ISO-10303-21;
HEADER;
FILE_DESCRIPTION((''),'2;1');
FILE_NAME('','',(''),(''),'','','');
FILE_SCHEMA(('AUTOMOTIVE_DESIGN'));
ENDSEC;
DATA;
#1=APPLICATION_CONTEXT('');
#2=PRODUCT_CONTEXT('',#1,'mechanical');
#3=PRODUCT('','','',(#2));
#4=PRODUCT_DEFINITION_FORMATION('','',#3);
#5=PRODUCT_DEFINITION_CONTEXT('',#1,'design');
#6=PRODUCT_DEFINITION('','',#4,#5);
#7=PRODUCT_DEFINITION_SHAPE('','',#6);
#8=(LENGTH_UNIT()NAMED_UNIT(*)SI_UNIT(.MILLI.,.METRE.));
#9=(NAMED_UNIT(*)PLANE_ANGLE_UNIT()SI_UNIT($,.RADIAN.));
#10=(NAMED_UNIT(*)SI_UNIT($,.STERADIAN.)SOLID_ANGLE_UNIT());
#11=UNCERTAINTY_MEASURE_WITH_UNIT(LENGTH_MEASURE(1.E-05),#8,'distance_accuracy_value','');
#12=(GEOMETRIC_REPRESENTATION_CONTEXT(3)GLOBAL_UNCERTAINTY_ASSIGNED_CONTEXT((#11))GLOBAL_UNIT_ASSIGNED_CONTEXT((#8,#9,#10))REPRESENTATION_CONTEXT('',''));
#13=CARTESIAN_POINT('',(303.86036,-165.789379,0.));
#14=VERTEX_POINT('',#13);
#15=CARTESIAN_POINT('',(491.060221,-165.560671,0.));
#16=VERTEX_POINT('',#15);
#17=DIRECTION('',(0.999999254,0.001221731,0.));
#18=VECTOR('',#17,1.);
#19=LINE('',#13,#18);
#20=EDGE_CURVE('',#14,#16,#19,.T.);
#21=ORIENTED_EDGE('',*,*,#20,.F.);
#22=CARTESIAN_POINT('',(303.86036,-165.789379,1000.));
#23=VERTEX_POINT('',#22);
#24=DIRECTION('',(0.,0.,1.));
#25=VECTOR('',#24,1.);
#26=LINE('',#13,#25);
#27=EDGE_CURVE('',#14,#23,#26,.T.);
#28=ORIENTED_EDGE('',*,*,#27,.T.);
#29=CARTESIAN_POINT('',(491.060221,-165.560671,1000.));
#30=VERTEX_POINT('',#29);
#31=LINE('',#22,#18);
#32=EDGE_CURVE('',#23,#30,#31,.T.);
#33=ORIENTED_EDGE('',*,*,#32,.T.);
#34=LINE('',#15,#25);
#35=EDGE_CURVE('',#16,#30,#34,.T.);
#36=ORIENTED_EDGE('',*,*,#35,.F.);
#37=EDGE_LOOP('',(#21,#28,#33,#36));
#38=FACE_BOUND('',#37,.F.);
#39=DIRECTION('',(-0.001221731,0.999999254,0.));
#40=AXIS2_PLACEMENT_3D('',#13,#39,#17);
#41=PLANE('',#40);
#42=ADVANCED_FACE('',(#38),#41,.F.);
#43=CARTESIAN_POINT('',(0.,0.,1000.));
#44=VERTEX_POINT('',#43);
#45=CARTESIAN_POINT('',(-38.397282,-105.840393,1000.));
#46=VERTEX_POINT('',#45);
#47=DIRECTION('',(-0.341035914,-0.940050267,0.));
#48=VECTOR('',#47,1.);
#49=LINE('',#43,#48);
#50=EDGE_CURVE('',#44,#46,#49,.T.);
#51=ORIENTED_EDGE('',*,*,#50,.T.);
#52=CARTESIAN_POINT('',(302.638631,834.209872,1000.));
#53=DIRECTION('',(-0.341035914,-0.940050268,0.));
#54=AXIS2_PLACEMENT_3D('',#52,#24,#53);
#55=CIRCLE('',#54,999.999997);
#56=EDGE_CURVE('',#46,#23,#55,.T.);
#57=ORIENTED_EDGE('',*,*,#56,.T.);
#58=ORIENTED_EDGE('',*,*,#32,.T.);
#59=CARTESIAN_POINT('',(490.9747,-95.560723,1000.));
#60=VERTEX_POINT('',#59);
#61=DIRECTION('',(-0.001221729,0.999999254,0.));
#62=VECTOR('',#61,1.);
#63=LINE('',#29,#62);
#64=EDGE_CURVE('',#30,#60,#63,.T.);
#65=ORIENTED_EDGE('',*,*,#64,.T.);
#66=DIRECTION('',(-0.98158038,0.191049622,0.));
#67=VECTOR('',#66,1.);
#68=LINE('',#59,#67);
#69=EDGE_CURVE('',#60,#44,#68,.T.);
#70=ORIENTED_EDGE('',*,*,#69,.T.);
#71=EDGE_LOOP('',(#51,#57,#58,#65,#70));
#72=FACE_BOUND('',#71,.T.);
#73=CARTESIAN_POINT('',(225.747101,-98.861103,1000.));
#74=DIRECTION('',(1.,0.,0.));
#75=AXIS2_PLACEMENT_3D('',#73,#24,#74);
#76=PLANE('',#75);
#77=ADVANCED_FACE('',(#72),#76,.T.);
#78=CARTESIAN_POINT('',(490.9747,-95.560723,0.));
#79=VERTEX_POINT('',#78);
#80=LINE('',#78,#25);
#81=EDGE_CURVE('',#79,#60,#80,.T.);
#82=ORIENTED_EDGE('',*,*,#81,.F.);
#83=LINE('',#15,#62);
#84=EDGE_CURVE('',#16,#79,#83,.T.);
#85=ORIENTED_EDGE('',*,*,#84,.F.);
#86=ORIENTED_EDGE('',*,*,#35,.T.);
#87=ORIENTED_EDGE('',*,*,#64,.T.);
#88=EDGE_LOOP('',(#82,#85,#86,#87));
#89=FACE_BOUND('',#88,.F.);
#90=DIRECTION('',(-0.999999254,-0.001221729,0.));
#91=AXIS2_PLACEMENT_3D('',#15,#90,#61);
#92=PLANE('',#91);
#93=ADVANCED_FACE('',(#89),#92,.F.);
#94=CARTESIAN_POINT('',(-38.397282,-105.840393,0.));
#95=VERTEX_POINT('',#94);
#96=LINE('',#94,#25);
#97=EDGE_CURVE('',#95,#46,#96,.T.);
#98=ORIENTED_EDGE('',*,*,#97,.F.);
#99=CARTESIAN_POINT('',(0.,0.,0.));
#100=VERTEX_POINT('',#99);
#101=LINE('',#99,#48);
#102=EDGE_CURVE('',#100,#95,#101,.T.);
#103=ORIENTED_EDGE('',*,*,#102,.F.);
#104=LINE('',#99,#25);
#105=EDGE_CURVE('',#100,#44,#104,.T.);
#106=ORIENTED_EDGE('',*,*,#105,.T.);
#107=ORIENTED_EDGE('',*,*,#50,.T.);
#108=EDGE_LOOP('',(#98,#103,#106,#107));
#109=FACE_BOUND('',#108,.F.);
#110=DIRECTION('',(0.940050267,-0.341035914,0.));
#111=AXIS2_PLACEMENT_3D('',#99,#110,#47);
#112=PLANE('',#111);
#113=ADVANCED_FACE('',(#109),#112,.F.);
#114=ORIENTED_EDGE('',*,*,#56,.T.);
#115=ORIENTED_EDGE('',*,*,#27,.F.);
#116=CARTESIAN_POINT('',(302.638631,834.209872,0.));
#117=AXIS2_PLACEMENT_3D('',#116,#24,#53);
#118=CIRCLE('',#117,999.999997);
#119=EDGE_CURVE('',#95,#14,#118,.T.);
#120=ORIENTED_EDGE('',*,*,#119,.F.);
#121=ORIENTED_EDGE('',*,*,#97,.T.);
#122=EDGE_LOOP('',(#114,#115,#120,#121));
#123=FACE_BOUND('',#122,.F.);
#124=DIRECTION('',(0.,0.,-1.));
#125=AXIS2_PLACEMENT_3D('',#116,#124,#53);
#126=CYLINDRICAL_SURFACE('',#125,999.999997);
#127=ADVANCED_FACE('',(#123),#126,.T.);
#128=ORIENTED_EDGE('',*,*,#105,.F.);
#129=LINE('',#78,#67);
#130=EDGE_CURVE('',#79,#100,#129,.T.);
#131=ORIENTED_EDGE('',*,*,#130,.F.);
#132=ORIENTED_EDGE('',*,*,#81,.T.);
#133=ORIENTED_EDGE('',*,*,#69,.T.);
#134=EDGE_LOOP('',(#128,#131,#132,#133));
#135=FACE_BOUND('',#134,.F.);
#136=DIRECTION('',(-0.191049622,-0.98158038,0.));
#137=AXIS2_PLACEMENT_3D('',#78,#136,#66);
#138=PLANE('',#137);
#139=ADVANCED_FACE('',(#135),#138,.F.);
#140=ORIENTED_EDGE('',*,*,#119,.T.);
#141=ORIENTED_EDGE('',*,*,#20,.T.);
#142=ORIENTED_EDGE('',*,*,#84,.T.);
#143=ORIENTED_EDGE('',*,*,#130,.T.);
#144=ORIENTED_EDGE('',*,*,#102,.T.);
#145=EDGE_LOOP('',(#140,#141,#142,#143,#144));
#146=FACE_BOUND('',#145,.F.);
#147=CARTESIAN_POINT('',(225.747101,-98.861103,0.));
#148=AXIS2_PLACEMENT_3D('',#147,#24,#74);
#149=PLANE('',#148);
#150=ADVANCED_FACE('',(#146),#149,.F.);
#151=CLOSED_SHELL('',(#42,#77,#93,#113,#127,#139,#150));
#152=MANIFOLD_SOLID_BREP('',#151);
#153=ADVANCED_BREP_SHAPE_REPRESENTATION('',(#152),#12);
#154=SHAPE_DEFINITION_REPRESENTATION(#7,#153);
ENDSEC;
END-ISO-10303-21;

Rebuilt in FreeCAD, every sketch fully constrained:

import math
import FreeCAD as App
import Part
import Sketcher

V = App.Vector
Q = App.Units.Quantity

doc = App.newDocument("Part")
body = doc.addObject("PartDesign::Body", "Body")

# Sketch on XY plane
sketch1 = body.newObject("Sketcher::SketchObject", "Sketch")
sketch1.AttachmentSupport = (doc.getObject("XY_Plane"), [""])
sketch1.MapMode = "FlatFace"
sketch1.addGeometry([
    Part.LineSegment(V(304, -166, 0), V(491, -166, 0)),  # 0
    Part.LineSegment(V(491, -166, 0), V(491, -96, 0)),  # 1
    Part.LineSegment(V(491, -96, 0), V(0, 0, 0)),  # 2
    Part.LineSegment(V(0, 0, 0), V(-38, -106, 0)),  # 3
    Part.ArcOfCircle(Part.Circle(V(303, 834, 0), V(0, 0, 1), 1000), math.radians(-110), math.radians(-90)),  # 4
], False)
sketch1.addConstraint([
    Sketcher.Constraint("Coincident", 0, 2, 1, 1),
    Sketcher.Constraint("Coincident", 1, 2, 2, 1),
    Sketcher.Constraint("Coincident", 2, 2, 3, 1),
    Sketcher.Constraint("Coincident", 3, 2, 4, 1),
    Sketcher.Constraint("Tangent", 4, 2, 0, 1),
    Sketcher.Constraint("Coincident", 2, 2, -1, 1),
    Sketcher.Constraint("Perpendicular", 0, 1),
    Sketcher.Constraint("Distance", 1, Q("70 mm")),
    Sketcher.Constraint("Distance", 0, Q("187.200001 mm")),
    Sketcher.Constraint("Angle", 0, Q("0.07 deg")),
    Sketcher.Constraint("Angle", 3, Q("-109.94 deg")),
    Sketcher.Constraint("Radius", 4, Q("999.999997 mm")),
    Sketcher.Constraint("DistanceX", -1, 1, 1, 2, Q("490.9747 mm")),
    Sketcher.Constraint("Distance", 3, Q("112.590142 mm")),
])
pad1 = body.newObject("PartDesign::Pad", "Pad")
pad1.Profile = sketch1
pad1.Length = 1000

doc.recompute()
